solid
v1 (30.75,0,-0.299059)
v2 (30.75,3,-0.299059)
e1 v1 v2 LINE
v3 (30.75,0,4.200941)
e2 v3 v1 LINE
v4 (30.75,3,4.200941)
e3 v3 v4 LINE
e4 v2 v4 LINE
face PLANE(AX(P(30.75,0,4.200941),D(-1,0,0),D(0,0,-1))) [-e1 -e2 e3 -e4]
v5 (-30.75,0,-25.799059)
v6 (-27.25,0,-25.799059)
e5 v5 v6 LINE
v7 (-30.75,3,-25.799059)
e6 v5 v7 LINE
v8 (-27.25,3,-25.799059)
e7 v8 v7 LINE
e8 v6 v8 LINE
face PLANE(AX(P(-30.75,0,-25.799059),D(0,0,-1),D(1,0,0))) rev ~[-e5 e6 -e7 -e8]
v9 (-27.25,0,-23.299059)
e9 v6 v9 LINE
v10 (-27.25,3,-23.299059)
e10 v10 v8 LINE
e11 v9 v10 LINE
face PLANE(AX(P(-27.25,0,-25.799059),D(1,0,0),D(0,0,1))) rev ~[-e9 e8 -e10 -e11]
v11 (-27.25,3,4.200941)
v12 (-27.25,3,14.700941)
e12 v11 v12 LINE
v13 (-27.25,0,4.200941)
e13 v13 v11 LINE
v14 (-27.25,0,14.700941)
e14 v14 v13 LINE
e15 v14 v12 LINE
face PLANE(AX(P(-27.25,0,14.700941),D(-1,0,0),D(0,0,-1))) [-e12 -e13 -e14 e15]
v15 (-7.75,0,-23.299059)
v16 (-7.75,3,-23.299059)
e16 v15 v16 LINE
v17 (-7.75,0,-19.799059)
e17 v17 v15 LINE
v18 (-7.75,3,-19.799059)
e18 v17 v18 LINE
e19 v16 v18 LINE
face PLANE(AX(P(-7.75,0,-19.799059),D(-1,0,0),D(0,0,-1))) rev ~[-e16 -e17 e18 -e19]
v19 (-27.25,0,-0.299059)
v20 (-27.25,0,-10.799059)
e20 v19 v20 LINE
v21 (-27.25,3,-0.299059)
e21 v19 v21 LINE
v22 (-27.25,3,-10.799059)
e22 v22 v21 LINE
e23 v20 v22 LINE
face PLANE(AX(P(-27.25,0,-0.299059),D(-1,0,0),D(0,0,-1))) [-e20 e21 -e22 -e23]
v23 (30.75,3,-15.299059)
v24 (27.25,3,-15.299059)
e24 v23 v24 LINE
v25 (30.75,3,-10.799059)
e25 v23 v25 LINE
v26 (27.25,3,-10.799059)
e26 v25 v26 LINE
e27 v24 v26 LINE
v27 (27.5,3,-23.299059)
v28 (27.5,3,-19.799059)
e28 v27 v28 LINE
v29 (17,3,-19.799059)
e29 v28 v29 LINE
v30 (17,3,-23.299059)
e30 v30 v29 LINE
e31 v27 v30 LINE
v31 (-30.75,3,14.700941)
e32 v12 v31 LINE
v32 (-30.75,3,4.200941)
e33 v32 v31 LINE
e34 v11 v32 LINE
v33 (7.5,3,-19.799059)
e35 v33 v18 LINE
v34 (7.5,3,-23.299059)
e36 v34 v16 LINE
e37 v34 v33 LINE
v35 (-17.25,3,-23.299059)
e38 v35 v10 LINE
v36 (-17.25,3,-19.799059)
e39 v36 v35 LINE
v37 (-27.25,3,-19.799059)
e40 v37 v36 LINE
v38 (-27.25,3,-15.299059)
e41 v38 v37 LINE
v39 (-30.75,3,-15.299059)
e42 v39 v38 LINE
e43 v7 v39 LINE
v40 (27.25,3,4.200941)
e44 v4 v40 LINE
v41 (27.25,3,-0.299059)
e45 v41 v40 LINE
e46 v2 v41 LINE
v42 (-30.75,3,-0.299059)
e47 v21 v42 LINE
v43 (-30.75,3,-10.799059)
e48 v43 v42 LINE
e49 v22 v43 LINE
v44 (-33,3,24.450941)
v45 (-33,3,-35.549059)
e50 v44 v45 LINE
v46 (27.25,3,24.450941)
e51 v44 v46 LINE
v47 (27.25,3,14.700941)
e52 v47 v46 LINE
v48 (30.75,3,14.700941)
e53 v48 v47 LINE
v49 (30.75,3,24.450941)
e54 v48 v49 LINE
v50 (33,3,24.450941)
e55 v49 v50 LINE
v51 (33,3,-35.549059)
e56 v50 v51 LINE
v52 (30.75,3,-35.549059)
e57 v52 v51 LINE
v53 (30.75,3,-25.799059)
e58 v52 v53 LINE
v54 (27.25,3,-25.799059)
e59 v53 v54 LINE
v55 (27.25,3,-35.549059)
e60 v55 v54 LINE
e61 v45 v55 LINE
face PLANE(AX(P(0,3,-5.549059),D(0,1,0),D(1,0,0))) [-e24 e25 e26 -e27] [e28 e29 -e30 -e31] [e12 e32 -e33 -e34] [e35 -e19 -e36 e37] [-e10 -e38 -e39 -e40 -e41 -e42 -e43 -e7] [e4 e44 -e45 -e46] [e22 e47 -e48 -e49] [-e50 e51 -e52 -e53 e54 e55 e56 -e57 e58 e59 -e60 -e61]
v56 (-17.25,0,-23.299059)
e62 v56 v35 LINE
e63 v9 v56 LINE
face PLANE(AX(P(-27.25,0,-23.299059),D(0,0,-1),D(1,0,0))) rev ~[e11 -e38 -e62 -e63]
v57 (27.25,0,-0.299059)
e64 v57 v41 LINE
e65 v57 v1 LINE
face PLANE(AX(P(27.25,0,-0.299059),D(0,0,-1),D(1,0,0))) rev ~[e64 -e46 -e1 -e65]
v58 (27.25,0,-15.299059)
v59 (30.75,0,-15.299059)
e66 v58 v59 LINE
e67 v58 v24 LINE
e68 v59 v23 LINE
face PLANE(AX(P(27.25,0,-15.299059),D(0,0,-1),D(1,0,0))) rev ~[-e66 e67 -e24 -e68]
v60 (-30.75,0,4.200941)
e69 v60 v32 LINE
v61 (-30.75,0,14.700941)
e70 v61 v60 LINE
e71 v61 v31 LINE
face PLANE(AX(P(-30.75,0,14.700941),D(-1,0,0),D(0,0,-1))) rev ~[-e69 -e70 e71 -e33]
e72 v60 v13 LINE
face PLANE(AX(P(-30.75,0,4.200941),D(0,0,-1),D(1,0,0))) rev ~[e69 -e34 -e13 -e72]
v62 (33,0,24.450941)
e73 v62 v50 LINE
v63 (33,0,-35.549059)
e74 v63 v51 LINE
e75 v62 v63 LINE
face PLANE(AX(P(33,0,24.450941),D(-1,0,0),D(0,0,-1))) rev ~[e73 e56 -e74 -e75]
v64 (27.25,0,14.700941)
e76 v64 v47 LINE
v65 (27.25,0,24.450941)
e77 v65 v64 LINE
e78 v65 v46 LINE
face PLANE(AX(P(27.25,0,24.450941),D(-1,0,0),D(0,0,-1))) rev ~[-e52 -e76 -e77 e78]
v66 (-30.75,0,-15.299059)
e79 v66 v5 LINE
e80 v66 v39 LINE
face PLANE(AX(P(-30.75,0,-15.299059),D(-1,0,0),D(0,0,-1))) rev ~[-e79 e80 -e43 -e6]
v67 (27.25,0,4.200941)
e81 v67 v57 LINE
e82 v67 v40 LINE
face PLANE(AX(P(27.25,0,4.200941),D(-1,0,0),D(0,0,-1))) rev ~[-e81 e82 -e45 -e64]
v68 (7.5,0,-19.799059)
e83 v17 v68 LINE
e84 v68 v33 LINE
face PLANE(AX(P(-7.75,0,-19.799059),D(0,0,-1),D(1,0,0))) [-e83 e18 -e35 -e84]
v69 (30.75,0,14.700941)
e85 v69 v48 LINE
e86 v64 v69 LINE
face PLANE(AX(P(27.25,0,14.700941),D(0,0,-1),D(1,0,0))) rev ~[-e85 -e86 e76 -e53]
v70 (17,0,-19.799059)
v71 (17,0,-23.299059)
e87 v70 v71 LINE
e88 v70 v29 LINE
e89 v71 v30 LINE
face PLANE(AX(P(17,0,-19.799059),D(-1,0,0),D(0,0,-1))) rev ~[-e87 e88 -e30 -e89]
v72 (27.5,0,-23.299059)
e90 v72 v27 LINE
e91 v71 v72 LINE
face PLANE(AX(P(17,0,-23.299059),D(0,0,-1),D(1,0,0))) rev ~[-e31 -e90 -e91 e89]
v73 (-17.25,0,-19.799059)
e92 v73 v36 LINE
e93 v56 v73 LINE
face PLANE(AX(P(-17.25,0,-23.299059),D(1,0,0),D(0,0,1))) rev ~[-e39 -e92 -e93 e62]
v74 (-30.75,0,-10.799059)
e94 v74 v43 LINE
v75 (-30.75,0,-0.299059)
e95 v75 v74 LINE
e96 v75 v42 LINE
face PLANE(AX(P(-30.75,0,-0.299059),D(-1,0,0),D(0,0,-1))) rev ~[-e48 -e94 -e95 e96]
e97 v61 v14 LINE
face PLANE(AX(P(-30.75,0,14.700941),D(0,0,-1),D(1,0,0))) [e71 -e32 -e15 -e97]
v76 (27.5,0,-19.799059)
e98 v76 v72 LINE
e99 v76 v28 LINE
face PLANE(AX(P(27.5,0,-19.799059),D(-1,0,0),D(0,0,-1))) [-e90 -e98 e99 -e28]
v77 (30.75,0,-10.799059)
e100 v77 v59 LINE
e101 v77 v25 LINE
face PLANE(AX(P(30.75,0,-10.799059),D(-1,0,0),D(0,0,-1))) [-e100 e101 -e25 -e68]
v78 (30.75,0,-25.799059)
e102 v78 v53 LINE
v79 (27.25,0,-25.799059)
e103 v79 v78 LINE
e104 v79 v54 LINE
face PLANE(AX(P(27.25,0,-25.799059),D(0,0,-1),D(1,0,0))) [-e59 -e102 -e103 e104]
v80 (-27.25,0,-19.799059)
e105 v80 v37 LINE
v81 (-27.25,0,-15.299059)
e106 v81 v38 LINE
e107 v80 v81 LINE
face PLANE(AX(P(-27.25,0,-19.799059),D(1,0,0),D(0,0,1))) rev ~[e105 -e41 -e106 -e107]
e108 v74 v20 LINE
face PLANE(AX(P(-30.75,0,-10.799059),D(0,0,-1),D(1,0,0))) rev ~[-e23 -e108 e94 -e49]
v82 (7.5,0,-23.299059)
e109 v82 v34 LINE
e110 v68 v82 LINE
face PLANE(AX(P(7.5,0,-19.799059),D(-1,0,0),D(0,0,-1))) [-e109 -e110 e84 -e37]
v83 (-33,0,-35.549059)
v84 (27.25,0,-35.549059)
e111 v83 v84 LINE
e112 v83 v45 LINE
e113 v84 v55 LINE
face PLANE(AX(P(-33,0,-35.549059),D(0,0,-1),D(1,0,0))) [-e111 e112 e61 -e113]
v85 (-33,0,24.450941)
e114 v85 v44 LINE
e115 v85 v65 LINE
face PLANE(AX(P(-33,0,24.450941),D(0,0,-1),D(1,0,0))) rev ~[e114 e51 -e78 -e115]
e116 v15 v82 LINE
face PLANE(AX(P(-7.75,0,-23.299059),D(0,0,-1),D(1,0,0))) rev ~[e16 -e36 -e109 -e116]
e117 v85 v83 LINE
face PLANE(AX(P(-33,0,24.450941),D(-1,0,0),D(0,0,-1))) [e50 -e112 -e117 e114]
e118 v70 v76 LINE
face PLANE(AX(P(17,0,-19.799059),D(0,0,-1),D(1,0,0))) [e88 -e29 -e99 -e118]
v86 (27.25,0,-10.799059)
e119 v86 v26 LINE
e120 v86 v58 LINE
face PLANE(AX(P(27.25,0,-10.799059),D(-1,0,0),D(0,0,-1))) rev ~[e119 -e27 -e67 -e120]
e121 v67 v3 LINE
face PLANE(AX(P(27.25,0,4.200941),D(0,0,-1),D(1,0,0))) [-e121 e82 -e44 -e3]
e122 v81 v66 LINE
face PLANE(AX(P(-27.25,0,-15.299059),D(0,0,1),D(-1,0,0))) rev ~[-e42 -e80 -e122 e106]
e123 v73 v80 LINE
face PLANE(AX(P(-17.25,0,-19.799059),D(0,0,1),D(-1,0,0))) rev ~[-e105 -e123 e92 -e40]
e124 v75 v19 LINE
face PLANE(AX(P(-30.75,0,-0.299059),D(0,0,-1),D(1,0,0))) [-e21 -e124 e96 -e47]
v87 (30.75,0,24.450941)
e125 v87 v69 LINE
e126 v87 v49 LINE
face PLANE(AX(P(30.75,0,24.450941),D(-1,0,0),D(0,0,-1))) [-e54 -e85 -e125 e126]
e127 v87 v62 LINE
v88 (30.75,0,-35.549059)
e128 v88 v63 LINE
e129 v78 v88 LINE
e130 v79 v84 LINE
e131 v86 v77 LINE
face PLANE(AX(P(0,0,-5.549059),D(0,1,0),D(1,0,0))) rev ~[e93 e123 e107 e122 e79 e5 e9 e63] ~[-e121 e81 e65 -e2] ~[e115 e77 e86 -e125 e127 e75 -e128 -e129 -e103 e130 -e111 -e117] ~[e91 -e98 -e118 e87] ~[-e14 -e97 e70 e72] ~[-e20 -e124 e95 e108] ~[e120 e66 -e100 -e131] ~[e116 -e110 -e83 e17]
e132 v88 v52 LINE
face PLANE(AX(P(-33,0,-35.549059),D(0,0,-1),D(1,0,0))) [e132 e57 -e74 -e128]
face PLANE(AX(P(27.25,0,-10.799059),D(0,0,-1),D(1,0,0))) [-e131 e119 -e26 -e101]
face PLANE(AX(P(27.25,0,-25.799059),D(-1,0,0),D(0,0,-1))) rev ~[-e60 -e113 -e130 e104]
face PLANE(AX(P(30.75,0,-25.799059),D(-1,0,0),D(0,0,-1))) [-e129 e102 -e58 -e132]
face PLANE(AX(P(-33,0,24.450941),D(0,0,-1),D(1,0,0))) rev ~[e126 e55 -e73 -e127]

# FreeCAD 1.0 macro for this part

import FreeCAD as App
import Part
import Sketcher

V = App.Vector


def add_polygon(sketch, points):
    """Adds a closed chain of lines whose ends are joined by coincident constraints."""
    first, n = sketch.GeometryCount, len(points)
    for a, b in zip(points, points[1:] + points[:1]):
        sketch.addGeometry(Part.LineSegment(App.Vector(*a, 0), App.Vector(*b, 0)), False)
    for i in range(n):
        sketch.addConstraint(Sketcher.Constraint("Coincident", first + i, 2, first + (i + 1) % n, 1))

doc = App.newDocument("Part")
params = doc.addObject("Spreadsheet::Sheet", "Params")
for row, (alias, value) in enumerate([
    ("sketch1_width", "66 mm"),
    ("sketch1_height", "60 mm"),
    ("pad1_length", "3 mm"),
    ("sketch2_width", "10 mm"),
    ("sketch2_width2", "3.5 mm"),
    ("sketch2_width3", "10.5 mm"),
    ("sketch2_height", "4.5 mm"),
    ("sketch2_width4", "15.25 mm"),
], start=1):
    params.set(f"A{row}", alias)
    params.set(f"B{row}", "=" + value)
    params.setAlias(f"B{row}", alias)

body = doc.addObject("PartDesign::Body", "Body")

# Sketch on XZ plane
sketch1 = body.newObject("Sketcher::SketchObject", "Sketch")
sketch1.AttachmentSupport = (doc.getObject("XZ_Plane"), [""])
sketch1.MapMode = "FlatFace"
add_polygon(sketch1, [(-33, -36), (-33, 24), (33, 24), (33, -36)])  # lines 0-3
sketch1.addConstraint([
    Sketcher.Constraint("Vertical", 0),
    Sketcher.Constraint("Horizontal", 1),
    Sketcher.Constraint("Vertical", 2),
    Sketcher.Constraint("Horizontal", 3),
    Sketcher.Constraint("DistanceX", 1, 1, 1, 2, 66.0),
    Sketcher.Constraint("DistanceY", 0, 1, 0, 2, 60.0),
    Sketcher.Constraint("DistanceX", 0, 2, -1, 1, 33.0),
    Sketcher.Constraint("DistanceY", -1, 1, 0, 2, 24.450941),
])
sketch1.setExpression("Constraints[8]", "Params.sketch1_width")
sketch1.setExpression("Constraints[9]", "Params.sketch1_height")
pad1 = body.newObject("PartDesign::Pad", "Pad")
pad1.Profile = sketch1
pad1.setExpression("Length", "Params.pad1_length")
pad1.Reversed = True

# Sketch on XZ plane
sketch2 = body.newObject("Sketcher::SketchObject", "Sketch001")
sketch2.AttachmentSupport = (doc.getObject("XZ_Plane"), [""])
sketch2.MapMode = "FlatFace"
add_polygon(sketch2, [(-30.8, -10.8), (-30.8, -0.3), (-27.2, -0.3), (-27.2, -10.8)])  # lines 0-3
add_polygon(sketch2, [(-27.2, -25.8), (-30.8, -25.8), (-30.8, -15.3), (-27.2, -15.3), (-27.2, -19.8), (-17.2, -19.8), (-17.2, -23.3), (-27.2, -23.3)])  # lines 4-11
add_polygon(sketch2, [(-30.8, 4.2), (-30.8, 14.7), (-27.2, 14.7), (-27.2, 4.2)])  # lines 12-15
add_polygon(sketch2, [(27.2, 14.7), (27.2, 24.5), (30.8, 24.5), (30.8, 14.7)])  # lines 16-19
add_polygon(sketch2, [(27.2, -15.3), (27.2, -10.8), (30.8, -10.8), (30.8, -15.3)])  # lines 20-23
add_polygon(sketch2, [(27.2, -0.3), (27.2, 4.2), (30.8, 4.2), (30.8, -0.3)])  # lines 24-27
add_polygon(sketch2, [(27.2, -35.5), (27.2, -25.8), (30.8, -25.8), (30.8, -35.5)])  # lines 28-31
add_polygon(sketch2, [(-7.8, -23.3), (-7.8, -19.8), (7.5, -19.8), (7.5, -23.3)])  # lines 32-35
add_polygon(sketch2, [(17, -23.3), (17, -19.8), (27.5, -19.8), (27.5, -23.3)])  # lines 36-39
sketch2.addConstraint([
    Sketcher.Constraint("Vertical", 0),
    Sketcher.Constraint("Horizontal", 1),
    Sketcher.Constraint("Vertical", 2),
    Sketcher.Constraint("Horizontal", 3),
    Sketcher.Constraint("Horizontal", 4),
    Sketcher.Constraint("Vertical", 5),
    Sketcher.Constraint("Horizontal", 6),
    Sketcher.Constraint("Vertical", 7),
    Sketcher.Constraint("Horizontal", 8),
    Sketcher.Constraint("Vertical", 9),
    Sketcher.Constraint("Horizontal", 10),
    Sketcher.Constraint("Vertical", 11),
    Sketcher.Constraint("Vertical", 12),
    Sketcher.Constraint("Horizontal", 13),
    Sketcher.Constraint("Vertical", 14),
    Sketcher.Constraint("Horizontal", 15),
    Sketcher.Constraint("Vertical", 16),
    Sketcher.Constraint("Horizontal", 17),
    Sketcher.Constraint("Vertical", 18),
    Sketcher.Constraint("Horizontal", 19),
    Sketcher.Constraint("Vertical", 20),
    Sketcher.Constraint("Horizontal", 21),
    Sketcher.Constraint("Vertical", 22),
    Sketcher.Constraint("Horizontal", 23),
    Sketcher.Constraint("Vertical", 24),
    Sketcher.Constraint("Horizontal", 25),
    Sketcher.Constraint("Vertical", 26),
    Sketcher.Constraint("Horizontal", 27),
    Sketcher.Constraint("Vertical", 28),
    Sketcher.Constraint("Horizontal", 29),
    Sketcher.Constraint("Vertical", 30),
    Sketcher.Constraint("Horizontal", 31),
    Sketcher.Constraint("Vertical", 32),
    Sketcher.Constraint("Horizontal", 33),
    Sketcher.Constraint("Vertical", 34),
    Sketcher.Constraint("Horizontal", 35),
    Sketcher.Constraint("Vertical", 36),
    Sketcher.Constraint("Horizontal", 37),
    Sketcher.Constraint("Vertical", 38),
    Sketcher.Constraint("Horizontal", 39),
    Sketcher.Constraint("Symmetric", 12, 2, 18, 2, -2),
    Sketcher.Constraint("Symmetric", 2, 2, 20, 2, -2),
    Sketcher.Constraint("Symmetric", 5, 2, 22, 2, -2),
    Sketcher.Constraint("Symmetric", 14, 2, 24, 2, -2),
    Sketcher.Constraint("Symmetric", 0, 2, 26, 2, -2),
    Sketcher.Constraint("Symmetric", 11, 2, 28, 2, -2),
    Sketcher.Constraint("Horizontal", 8, 2, 32, 2),
    Sketcher.Constraint("Horizontal", 10, 2, 34, 2),
    Sketcher.Constraint("Horizontal", 33, 2, 36, 2),
    Sketcher.Constraint("Horizontal", 35, 2, 38, 2),
    Sketcher.Constraint("Vertical", 3, 2, 4, 2),
    Sketcher.Constraint("Vertical", 2, 2, 6, 2),
    Sketcher.Constraint("Vertical", 7, 2, 10, 2),
    Sketcher.Constraint("Vertical", 5, 2, 12, 2),
    Sketcher.Constraint("Vertical", 11, 2, 13, 2),
    Sketcher.Constraint("Vertical", 19, 2, 20, 2),
    Sketcher.Constraint("Vertical", 26, 2, 29, 2),
    Sketcher.Constraint("Equal", 39, 0),
    Sketcher.Constraint("Equal", 2, 5),
    Sketcher.Constraint("Equal", 31, 9),
    Sketcher.Constraint("Equal", 5, 12),
    Sketcher.Constraint("Equal", 7, 20),
    Sketcher.Constraint("Equal", 22, 24),
    Sketcher.Constraint("Equal", 18, 28),
    Sketcher.Constraint("DistanceX", 8, 1, 8, 2, 10.0),
    Sketcher.Constraint("DistanceX", 1, 1, 1, 2, 3.5),
    Sketcher.Constraint("DistanceX", 37, 1, 37, 2, 10.5),
    Sketcher.Constraint("DistanceY", 7, 2, 7, 1, 4.5),
    Sketcher.Constraint("DistanceX", -1, 1, 36, 2, 17.0),
    Sketcher.Constraint("DistanceX", 12, 2, 16, 2, 58.0),
    Sketcher.Constraint("DistanceX", 33, 1, 33, 2, 15.25),
    Sketcher.Constraint("DistanceY", 16, 1, 16, 2, 9.75),
    Sketcher.Constraint("DistanceX", -1, 1, 33, 2, 7.5),
    Sketcher.Constraint("DistanceY", 0, 2, -1, 1, 0.299059),
])
sketch2.setExpression("Constraints[104]", "Params.sketch2_width")
sketch2.setExpression("Constraints[105]", "Params.sketch2_width2")
sketch2.setExpression("Constraints[106]", "Params.sketch2_width3")
sketch2.setExpression("Constraints[107]", "Params.sketch2_height")
sketch2.setExpression("Constraints[110]", "Params.sketch2_width4")
pocket1 = body.newObject("PartDesign::Pocket", "Pocket")
pocket1.Profile = sketch2
pocket1.Type = "ThroughAll"

doc.recompute()
